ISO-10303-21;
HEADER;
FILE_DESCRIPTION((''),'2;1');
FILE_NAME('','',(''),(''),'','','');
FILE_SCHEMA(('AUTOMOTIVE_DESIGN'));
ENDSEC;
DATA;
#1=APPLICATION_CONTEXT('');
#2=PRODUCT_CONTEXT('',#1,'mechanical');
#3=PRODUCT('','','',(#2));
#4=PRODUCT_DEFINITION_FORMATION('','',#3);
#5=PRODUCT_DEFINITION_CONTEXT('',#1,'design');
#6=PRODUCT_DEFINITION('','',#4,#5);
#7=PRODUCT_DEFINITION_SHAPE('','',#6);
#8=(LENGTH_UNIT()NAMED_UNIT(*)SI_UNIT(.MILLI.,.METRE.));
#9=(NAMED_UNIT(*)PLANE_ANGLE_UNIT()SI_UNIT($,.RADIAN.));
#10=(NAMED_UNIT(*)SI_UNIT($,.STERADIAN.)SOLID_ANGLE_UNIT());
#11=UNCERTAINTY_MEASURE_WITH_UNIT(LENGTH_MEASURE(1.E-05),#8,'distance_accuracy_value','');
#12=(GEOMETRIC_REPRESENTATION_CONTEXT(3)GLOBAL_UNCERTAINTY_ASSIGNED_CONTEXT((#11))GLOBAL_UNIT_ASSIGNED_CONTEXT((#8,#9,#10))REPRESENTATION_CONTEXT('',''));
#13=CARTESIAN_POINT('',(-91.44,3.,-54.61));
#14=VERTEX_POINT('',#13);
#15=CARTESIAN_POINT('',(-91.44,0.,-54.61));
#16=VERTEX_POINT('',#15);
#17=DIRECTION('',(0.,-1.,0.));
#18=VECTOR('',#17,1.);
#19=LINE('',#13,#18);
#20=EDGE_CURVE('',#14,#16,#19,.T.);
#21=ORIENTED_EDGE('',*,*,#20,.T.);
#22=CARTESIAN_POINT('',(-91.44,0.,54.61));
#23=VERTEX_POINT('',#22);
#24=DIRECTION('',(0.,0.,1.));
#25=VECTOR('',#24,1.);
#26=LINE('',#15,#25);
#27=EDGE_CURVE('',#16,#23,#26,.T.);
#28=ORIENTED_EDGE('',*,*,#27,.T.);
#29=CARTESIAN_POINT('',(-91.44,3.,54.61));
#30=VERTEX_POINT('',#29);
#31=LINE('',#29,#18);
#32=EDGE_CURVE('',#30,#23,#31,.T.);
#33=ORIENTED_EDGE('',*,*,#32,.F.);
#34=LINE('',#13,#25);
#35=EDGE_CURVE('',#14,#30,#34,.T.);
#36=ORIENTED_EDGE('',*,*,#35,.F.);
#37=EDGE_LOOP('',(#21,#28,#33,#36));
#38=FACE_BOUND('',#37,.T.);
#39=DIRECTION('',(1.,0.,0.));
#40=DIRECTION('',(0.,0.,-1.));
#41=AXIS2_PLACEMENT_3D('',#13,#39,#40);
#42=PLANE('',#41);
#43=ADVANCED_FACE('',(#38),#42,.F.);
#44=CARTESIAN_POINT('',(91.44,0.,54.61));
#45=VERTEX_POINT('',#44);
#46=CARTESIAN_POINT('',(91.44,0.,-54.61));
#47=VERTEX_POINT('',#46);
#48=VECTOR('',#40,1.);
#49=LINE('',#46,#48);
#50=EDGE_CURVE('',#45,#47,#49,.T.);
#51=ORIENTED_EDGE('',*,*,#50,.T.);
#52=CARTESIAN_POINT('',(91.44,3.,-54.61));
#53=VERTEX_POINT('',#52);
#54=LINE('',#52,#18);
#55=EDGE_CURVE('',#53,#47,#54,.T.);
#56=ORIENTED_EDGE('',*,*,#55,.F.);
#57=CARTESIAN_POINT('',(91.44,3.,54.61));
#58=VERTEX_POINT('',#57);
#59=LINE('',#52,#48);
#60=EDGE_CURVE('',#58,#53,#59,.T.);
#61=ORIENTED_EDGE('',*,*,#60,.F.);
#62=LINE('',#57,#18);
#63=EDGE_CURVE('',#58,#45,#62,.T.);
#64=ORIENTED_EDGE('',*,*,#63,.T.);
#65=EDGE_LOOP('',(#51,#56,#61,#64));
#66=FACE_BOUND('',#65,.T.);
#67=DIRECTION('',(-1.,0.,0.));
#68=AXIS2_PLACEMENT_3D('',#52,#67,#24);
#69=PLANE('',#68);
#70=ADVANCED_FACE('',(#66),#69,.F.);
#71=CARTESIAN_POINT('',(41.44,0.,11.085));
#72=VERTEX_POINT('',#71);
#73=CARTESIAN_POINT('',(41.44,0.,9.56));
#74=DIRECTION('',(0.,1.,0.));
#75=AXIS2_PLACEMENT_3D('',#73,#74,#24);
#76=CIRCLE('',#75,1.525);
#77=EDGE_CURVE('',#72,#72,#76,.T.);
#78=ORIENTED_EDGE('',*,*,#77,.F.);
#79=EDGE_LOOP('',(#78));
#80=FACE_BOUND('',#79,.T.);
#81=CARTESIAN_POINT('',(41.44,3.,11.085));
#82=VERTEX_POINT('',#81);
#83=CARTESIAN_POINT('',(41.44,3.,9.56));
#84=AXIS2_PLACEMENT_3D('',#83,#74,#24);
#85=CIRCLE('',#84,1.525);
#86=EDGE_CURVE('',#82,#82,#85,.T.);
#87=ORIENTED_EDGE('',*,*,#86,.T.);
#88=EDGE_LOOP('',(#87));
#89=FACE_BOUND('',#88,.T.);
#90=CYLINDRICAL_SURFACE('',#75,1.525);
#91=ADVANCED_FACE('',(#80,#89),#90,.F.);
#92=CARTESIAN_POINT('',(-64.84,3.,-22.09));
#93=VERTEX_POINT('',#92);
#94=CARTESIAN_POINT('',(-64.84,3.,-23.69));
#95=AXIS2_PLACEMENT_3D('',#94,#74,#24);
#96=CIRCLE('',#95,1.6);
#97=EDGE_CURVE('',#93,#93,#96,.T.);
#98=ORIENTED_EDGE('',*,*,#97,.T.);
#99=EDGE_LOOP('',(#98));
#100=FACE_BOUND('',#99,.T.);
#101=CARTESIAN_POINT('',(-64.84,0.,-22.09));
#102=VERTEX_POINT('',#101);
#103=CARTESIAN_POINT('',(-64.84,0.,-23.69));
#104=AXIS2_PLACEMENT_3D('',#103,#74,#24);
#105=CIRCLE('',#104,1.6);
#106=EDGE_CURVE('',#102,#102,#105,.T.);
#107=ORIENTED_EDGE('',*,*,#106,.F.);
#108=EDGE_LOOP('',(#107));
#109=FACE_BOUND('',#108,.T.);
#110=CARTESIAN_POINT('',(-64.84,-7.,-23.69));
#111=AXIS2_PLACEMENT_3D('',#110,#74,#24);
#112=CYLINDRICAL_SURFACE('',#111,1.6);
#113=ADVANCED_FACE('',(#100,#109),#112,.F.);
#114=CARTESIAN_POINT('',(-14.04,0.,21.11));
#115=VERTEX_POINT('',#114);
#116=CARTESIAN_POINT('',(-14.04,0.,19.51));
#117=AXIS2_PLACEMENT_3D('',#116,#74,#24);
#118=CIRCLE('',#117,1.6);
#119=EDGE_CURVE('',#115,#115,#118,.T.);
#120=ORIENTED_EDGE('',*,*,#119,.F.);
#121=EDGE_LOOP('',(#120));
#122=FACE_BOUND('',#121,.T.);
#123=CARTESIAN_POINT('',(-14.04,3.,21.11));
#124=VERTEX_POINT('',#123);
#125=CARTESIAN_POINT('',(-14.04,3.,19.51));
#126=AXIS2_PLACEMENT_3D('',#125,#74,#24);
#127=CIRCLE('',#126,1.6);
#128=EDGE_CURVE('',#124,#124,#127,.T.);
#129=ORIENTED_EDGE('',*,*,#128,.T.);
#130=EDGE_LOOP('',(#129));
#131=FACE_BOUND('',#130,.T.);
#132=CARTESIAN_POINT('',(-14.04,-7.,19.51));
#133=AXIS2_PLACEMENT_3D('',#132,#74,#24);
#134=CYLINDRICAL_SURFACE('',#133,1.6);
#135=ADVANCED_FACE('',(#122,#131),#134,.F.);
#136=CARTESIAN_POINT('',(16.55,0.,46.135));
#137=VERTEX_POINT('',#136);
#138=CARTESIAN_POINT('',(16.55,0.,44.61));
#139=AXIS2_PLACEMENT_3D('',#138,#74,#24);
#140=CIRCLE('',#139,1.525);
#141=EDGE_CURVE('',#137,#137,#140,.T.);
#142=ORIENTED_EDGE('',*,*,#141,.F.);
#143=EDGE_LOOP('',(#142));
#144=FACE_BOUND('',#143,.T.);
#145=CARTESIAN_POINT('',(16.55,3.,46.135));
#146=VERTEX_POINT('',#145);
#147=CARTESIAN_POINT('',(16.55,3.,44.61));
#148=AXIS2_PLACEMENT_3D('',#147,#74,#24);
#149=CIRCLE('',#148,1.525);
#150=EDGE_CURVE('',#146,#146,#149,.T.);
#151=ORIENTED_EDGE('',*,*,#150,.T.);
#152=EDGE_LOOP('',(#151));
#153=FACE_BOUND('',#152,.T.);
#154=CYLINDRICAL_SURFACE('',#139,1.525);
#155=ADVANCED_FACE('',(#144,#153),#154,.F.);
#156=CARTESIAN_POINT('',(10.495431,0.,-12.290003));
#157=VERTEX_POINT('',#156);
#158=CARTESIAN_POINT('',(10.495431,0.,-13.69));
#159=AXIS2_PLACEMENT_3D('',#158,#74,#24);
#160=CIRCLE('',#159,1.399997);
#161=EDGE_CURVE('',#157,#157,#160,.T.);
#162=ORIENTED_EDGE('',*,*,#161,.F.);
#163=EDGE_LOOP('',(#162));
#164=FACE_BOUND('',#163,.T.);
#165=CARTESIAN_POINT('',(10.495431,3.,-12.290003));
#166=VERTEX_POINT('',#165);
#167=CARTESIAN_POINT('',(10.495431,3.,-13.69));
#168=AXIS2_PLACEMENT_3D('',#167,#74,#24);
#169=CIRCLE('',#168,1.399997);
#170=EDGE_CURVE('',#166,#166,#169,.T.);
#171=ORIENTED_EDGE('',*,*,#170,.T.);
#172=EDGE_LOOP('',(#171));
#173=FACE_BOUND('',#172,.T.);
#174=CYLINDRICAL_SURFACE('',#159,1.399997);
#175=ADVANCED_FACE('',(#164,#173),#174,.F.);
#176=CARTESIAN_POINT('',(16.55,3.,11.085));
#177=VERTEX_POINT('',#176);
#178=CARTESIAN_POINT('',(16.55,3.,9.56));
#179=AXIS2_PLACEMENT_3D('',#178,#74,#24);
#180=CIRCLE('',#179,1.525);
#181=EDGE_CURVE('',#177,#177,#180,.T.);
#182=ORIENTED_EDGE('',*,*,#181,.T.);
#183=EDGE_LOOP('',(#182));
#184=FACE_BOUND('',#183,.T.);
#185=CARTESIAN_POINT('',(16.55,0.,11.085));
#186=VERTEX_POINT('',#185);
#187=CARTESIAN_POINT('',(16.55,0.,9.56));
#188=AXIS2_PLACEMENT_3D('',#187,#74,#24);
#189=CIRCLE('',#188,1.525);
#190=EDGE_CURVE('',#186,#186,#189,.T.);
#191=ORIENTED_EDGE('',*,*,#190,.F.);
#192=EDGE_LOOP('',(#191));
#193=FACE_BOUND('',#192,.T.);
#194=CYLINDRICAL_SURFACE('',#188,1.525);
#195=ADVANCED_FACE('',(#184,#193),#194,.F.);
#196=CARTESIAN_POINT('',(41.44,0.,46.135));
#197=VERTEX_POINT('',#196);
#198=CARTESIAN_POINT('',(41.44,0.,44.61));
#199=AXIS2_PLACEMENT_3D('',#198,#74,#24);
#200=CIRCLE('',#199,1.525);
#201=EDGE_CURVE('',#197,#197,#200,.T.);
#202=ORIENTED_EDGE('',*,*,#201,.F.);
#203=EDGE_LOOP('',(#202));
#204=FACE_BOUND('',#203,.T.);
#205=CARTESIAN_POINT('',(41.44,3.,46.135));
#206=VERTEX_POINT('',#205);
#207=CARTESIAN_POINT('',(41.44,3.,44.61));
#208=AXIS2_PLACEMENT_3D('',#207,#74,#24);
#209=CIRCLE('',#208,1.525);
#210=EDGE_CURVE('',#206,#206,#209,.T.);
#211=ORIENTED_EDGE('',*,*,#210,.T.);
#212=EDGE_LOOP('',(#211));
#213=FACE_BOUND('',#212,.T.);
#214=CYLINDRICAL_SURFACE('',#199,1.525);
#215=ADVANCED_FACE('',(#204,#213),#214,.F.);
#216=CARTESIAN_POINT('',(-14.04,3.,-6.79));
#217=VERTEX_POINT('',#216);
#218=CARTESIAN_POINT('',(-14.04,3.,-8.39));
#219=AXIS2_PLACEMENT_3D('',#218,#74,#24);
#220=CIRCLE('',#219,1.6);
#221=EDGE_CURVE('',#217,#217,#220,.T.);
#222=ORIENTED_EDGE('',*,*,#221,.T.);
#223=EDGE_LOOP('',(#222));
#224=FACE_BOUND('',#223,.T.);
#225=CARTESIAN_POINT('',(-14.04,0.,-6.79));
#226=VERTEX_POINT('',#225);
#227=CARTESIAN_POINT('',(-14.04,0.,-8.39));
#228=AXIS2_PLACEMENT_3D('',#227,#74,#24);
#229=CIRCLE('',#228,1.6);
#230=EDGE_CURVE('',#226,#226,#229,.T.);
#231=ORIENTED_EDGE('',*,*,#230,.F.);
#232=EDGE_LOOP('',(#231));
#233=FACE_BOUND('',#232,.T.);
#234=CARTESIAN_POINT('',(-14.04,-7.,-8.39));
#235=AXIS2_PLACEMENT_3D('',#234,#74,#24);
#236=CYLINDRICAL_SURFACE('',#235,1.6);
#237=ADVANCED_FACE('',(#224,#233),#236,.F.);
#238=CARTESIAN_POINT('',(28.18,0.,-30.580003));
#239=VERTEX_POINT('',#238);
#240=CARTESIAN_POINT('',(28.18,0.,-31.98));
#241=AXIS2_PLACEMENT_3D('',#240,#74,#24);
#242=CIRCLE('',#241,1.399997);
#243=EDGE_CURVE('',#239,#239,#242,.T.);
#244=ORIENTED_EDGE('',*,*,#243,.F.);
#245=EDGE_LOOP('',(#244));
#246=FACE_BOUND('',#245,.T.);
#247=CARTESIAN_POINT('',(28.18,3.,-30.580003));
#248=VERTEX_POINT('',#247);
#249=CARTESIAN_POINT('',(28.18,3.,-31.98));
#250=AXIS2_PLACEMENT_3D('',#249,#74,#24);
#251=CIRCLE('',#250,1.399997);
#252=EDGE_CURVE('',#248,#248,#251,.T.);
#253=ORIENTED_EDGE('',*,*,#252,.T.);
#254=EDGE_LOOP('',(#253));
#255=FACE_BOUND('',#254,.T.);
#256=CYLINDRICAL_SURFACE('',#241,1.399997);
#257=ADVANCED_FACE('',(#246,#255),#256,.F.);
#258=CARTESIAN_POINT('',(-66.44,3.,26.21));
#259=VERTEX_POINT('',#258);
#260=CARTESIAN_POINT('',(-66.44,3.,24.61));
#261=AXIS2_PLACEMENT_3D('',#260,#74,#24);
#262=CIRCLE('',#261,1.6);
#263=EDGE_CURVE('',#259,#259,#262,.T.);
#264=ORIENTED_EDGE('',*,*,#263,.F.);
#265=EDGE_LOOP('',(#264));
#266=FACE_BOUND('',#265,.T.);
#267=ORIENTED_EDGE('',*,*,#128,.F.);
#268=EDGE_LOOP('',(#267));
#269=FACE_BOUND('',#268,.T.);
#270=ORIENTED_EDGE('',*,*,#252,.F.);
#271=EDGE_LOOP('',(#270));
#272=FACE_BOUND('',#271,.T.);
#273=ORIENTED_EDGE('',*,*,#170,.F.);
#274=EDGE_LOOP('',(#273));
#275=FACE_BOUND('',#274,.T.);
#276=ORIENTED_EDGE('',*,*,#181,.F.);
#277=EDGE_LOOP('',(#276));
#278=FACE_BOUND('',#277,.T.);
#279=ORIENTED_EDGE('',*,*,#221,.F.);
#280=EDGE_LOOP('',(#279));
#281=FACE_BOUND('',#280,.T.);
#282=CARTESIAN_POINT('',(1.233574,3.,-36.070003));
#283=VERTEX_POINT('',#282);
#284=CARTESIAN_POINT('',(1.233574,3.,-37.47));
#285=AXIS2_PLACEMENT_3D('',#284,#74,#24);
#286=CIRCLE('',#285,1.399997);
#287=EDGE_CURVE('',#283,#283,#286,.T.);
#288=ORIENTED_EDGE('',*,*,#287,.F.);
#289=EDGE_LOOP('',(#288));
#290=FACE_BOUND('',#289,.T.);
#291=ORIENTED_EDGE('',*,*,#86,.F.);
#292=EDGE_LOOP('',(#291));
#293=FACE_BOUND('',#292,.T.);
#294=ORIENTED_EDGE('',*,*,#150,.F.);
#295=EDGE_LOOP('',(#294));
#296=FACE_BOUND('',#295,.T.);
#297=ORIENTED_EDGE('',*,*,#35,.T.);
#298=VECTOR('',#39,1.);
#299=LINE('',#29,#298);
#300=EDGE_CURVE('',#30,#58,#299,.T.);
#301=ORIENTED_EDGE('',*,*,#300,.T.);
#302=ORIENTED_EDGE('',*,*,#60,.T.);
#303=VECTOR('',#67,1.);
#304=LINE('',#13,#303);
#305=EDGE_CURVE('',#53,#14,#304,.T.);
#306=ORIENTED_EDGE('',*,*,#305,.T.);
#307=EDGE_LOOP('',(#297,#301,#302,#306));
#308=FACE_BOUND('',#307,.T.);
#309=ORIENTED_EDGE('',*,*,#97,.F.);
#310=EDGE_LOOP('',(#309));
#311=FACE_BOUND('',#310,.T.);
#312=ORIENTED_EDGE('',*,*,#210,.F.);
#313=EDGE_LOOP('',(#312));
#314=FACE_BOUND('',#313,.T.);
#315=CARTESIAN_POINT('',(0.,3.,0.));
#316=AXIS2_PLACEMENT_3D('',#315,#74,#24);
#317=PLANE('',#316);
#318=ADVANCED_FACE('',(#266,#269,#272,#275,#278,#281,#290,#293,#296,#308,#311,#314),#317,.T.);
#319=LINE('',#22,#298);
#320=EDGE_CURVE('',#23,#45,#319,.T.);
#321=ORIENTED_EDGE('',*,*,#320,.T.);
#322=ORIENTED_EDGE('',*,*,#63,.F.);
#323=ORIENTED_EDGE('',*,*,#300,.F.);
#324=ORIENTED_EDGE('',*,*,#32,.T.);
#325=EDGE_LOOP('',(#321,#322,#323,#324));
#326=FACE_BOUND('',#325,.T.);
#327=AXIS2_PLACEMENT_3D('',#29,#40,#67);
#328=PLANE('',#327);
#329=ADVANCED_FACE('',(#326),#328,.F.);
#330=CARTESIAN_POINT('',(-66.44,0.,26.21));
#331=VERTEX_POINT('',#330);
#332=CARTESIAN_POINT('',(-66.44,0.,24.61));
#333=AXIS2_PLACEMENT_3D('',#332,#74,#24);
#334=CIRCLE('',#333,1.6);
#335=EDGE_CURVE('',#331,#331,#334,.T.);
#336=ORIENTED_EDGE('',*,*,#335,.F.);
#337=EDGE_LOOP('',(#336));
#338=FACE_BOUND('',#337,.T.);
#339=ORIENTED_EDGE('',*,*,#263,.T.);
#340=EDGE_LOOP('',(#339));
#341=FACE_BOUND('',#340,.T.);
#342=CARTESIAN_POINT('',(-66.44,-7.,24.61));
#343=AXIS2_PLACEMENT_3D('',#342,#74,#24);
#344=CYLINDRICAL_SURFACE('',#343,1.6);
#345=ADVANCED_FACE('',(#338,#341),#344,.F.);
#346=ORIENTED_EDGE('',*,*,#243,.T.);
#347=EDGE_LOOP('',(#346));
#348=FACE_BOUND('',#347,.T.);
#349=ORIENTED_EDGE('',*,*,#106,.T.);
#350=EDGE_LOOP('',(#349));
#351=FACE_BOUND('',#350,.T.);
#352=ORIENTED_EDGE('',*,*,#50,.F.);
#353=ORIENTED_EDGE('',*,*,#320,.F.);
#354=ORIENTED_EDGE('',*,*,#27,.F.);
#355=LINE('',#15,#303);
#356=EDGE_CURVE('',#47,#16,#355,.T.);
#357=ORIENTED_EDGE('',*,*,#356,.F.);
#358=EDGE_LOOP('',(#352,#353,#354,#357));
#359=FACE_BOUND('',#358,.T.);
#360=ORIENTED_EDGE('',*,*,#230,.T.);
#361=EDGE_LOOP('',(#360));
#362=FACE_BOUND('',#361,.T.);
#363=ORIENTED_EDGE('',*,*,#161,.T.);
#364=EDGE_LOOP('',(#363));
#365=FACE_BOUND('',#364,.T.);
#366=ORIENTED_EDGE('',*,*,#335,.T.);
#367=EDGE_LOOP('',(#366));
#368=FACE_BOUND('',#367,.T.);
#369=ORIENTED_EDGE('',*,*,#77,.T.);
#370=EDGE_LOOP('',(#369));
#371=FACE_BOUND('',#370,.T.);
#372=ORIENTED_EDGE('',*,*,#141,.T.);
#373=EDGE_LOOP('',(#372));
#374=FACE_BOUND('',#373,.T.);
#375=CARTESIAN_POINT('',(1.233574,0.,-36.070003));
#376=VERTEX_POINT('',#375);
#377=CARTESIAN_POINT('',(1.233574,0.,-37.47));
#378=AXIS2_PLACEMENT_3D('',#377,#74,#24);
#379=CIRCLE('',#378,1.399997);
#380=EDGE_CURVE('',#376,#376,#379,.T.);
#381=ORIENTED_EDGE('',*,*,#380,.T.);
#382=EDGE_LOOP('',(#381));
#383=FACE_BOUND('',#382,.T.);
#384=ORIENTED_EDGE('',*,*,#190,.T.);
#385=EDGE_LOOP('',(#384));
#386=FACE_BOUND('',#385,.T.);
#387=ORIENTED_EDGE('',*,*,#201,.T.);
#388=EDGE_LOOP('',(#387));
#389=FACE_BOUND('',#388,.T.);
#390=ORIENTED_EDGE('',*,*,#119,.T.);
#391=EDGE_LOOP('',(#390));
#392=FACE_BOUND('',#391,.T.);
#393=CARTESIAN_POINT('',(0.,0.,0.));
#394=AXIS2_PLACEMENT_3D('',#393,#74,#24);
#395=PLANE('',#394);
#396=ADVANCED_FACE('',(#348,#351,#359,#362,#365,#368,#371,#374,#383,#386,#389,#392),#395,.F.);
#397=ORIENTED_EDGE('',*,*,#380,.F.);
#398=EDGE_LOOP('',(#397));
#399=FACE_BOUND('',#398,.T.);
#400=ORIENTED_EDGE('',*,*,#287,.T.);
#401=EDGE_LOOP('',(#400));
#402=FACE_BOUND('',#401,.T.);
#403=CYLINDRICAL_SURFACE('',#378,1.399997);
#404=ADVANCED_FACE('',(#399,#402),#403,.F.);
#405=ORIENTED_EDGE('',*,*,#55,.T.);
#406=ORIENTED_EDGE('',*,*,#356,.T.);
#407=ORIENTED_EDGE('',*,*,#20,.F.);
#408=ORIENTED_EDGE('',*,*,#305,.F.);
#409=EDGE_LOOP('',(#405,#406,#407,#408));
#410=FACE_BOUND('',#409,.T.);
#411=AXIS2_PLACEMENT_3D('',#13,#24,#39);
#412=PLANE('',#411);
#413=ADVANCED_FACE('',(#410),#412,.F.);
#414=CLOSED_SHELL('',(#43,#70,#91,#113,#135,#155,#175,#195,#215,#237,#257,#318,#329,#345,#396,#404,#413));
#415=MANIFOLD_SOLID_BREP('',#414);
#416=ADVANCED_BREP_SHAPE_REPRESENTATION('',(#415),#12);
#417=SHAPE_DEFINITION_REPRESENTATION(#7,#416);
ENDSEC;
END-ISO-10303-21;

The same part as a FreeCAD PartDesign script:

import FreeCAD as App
import Part
import Sketcher


def add_polygon(sketch, points):
    """Adds a closed chain of lines whose ends are joined by coincident constraints."""
    first, n = sketch.GeometryCount, len(points)
    for a, b in zip(points, points[1:] + points[:1]):
        sketch.addGeometry(Part.LineSegment(App.Vector(*a, 0), App.Vector(*b, 0)), False)
    for i in range(n):
        sketch.addConstraint(Sketcher.Constraint("Coincident", first + i, 2, first + (i + 1) % n, 1))

doc = App.newDocument("Part")
body = doc.addObject("PartDesign::Body", "Body")

# Sketch on XZ plane
sketch1 = body.newObject("Sketcher::SketchObject", "Sketch")
sketch1.AttachmentSupport = (doc.getObject("XZ_Plane"), [""])
sketch1.MapMode = "FlatFace"
add_polygon(sketch1, [(-91, -55), (-91, 55), (91, 55), (91, -55)])  # lines 0-3
sketch1.addConstraint([
    Sketcher.Constraint("Vertical", 0),
    Sketcher.Constraint("Horizontal", 1),
    Sketcher.Constraint("Vertical", 2),
    Sketcher.Constraint("Horizontal", 3),
    Sketcher.Constraint("Symmetric", 0, 2, 2, 2, -1, 1),
    Sketcher.Constraint("DistanceX", 1, 1, 1, 2, 182.88),
    Sketcher.Constraint("DistanceY", 0, 1, 0, 2, 109.22),
])
pad1 = body.newObject("PartDesign::Pad", "Pad")
pad1.Profile = sketch1
pad1.Length = 3
pad1.Reversed = True

# Sketch on XZ plane
sketch2 = body.newObject("Sketcher::SketchObject", "Sketch001")
sketch2.AttachmentSupport = (doc.getObject("XZ_Plane"), [""])
sketch2.MapMode = "FlatFace"
sketch2.AttachmentOffset = App.Placement(App.Vector(0, 0, -3), App.Rotation())
sketch2.addGeometry([
    Part.Circle(App.Vector(-66.4, 24.6, 0), App.Vector(0, 0, 1), 1.6),
    Part.Circle(App.Vector(-64.8, -23.7, 0), App.Vector(0, 0, 1), 1.6),
    Part.Circle(App.Vector(-14, -8.4, 0), App.Vector(0, 0, 1), 1.6),
    Part.Circle(App.Vector(-14, 19.5, 0), App.Vector(0, 0, 1), 1.6),
], False)
sketch2.addConstraint([
    Sketcher.Constraint("Equal", 0, 1),
    Sketcher.Constraint("Equal", 1, 2),
    Sketcher.Constraint("Equal", 2, 3),
    Sketcher.Constraint("Vertical", 2, 3, 3, 3),
    Sketcher.Constraint("Diameter", 0, 3.2),
    Sketcher.Constraint("DistanceY", 2, 3, 0, 3, 33.0),
    Sketcher.Constraint("DistanceX", 0, 3, 1, 3, 1.6),
    Sketcher.Constraint("DistanceY", 1, 3, 0, 3, 48.3),
    Sketcher.Constraint("DistanceX", 1, 3, 2, 3, 50.8),
    Sketcher.Constraint("DistanceY", 2, 3, 3, 3, 27.9),
    Sketcher.Constraint("DistanceX", 0, 3, -1, 1, 66.44),
    Sketcher.Constraint("DistanceY", -1, 1, 0, 3, 24.61),
])
pocket1 = body.newObject("PartDesign::Pocket", "Pocket")
pocket1.Profile = sketch2
pocket1.Length = 10
pocket1.Reversed = True

# Sketch on XZ plane
sketch3 = body.newObject("Sketcher::SketchObject", "Sketch002")
sketch3.AttachmentSupport = (doc.getObject("XZ_Plane"), [""])
sketch3.MapMode = "FlatFace"
sketch3.AttachmentOffset = App.Placement(App.Vector(0, 0, -3), App.Rotation())
sketch3.addGeometry([
    Part.Circle(App.Vector(10.5, -13.7, 0), App.Vector(0, 0, 1), 1.4),
    Part.Circle(App.Vector(1.2, -37.5, 0), App.Vector(0, 0, 1), 1.4),
    Part.Circle(App.Vector(28.2, -32, 0), App.Vector(0, 0, 1), 1.4),
], False)
sketch3.addConstraint([
    Sketcher.Constraint("Equal", 0, 1),
    Sketcher.Constraint("Equal", 1, 2),
    Sketcher.Constraint("DistanceY", 0, 3, -1, 1, 13.69),
    Sketcher.Constraint("DistanceY", 1, 3, -1, 1, 37.47),
    Sketcher.Constraint("DistanceX", -1, 1, 2, 3, 28.18),
    Sketcher.Constraint("DistanceY", 2, 3, -1, 1, 31.98),
    Sketcher.Constraint("Diameter", 0, 2.799994),
    Sketcher.Constraint("DistanceX", -1, 1, 0, 3, 10.495431),
    Sketcher.Constraint("DistanceX", -1, 1, 1, 3, 1.233574),
])
pocket2 = body.newObject("PartDesign::Pocket", "Pocket001")
pocket2.Profile = sketch3
pocket2.Type = "ThroughAll"
pocket2.Reversed = True

# Sketch on XZ plane
sketch4 = body.newObject("Sketcher::SketchObject", "Sketch003")
sketch4.AttachmentSupport = (doc.getObject("XZ_Plane"), [""])
sketch4.MapMode = "FlatFace"
sketch4.AttachmentOffset = App.Placement(App.Vector(0, 0, -3), App.Rotation())
sketch4.addGeometry([
    Part.Circle(App.Vector(16.6, 44.6, 0), App.Vector(0, 0, 1), 1.5),
    Part.Circle(App.Vector(41.4, 9.6, 0), App.Vector(0, 0, 1), 1.5),
    Part.Circle(App.Vector(16.6, 9.6, 0), App.Vector(0, 0, 1), 1.5),
    Part.Circle(App.Vector(41.4, 44.6, 0), App.Vector(0, 0, 1), 1.5),
], False)
sketch4.addConstraint([
    Sketcher.Constraint("Equal", 0, 1),
    Sketcher.Constraint("Equal", 1, 2),
    Sketcher.Constraint("Equal", 2, 3),
    Sketcher.Constraint("Horizontal", 1, 3, 2, 3),
    Sketcher.Constraint("Horizontal", 0, 3, 3, 3),
    Sketcher.Constraint("Vertical", 0, 3, 2, 3),
    Sketcher.Constraint("Vertical", 1, 3, 3, 3),
    Sketcher.Constraint("Diameter", 0, 3.05),
    Sketcher.Constraint("DistanceX", -1, 1, 0, 3, 16.55),
    Sketcher.Constraint("DistanceY", -1, 1, 0, 3, 44.61),
    Sketcher.Constraint("DistanceX", -1, 1, 1, 3, 41.44),
    Sketcher.Constraint("DistanceY", -1, 1, 1, 3, 9.56),
])
pocket3 = body.newObject("PartDesign::Pocket", "Pocket002")
pocket3.Profile = sketch4
pocket3.Type = "ThroughAll"
pocket3.Reversed = True

doc.recompute()
